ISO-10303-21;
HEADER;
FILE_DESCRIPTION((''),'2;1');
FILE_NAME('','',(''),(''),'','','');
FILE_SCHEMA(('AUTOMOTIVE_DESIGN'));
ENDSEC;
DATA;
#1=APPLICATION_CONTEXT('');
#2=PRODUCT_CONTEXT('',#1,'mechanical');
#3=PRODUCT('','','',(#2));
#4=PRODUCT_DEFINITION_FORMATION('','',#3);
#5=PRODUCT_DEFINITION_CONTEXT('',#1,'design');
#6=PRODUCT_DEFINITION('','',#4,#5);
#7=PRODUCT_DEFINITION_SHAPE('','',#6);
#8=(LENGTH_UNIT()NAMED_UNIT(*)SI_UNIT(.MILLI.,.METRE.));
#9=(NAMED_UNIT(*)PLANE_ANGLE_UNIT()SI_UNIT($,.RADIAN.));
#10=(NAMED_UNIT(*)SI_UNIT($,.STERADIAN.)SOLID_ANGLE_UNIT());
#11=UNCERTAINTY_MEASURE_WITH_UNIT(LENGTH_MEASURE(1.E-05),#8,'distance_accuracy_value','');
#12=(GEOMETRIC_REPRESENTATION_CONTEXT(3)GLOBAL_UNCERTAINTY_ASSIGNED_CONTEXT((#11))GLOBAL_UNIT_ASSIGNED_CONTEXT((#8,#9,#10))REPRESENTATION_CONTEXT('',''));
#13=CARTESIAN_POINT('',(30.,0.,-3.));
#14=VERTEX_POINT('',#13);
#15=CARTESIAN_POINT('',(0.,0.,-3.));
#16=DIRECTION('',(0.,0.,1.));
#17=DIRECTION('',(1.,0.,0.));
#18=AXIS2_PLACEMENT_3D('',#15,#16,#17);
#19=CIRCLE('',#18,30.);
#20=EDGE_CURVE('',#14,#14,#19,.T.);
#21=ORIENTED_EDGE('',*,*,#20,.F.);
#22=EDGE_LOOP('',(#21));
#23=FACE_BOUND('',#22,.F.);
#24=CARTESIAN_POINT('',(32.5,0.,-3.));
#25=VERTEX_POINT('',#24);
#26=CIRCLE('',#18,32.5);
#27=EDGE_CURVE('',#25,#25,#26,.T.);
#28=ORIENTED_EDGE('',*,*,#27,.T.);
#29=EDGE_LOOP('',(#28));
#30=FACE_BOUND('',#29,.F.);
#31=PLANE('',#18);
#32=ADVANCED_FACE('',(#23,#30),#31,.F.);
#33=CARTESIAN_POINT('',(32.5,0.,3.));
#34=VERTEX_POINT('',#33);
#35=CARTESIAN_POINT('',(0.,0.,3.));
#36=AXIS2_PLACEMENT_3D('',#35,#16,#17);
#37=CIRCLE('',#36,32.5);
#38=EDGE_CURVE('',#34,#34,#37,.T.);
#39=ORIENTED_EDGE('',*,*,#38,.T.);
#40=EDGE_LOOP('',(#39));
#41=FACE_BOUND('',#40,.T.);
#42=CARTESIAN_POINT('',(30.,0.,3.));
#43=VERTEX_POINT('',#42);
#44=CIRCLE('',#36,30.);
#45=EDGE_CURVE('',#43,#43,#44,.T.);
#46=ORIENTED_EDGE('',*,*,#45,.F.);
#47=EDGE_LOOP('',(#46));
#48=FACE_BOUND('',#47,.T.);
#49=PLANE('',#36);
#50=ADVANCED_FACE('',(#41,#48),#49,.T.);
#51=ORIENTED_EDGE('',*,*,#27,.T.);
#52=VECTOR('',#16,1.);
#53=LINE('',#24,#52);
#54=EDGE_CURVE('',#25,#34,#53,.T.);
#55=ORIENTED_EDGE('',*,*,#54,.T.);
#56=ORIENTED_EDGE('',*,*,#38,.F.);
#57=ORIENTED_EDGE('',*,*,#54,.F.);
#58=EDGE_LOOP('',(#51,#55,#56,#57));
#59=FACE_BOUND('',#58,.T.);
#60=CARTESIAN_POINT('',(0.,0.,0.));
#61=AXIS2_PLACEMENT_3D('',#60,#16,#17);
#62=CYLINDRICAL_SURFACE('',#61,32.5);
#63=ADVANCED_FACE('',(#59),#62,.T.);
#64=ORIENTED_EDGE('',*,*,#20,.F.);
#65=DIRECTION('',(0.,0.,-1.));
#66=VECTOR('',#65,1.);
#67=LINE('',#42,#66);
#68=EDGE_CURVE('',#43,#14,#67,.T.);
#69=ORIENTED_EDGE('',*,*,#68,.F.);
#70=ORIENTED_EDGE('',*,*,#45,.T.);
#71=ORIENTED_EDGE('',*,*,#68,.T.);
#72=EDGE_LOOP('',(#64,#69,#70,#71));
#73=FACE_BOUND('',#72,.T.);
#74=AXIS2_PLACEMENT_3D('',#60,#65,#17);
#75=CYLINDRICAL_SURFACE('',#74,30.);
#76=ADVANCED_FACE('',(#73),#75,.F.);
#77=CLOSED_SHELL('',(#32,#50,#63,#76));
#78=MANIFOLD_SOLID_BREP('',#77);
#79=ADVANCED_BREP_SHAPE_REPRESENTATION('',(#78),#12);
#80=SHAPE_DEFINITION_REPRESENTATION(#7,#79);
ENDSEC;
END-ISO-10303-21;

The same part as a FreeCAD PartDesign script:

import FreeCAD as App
import Part
import Sketcher
Q = App.Units.Quantity

doc = App.newDocument("Part")
body = doc.addObject("PartDesign::Body", "Body")

# Sketch on XY plane
sketch1 = body.newObject("Sketcher::SketchObject", "Sketch")
sketch1.AttachmentSupport = (doc.getObject("XY_Plane"), [""])
sketch1.MapMode = "FlatFace"
sketch1.addGeometry(Part.Circle(App.Vector(0, 0, 0), App.Vector(0, 0, 1), 32), False)
sketch1.addGeometry(Part.Circle(App.Vector(0, 0, 0), App.Vector(0, 0, 1), 30), False)
sketch1.addConstraint(Sketcher.Constraint("Coincident", 0, 3, -1, 1))
sketch1.addConstraint(Sketcher.Constraint("Coincident", 1, 3, -1, 1))
sketch1.addConstraint(Sketcher.Constraint("Diameter", 0, Q("65 mm")))
sketch1.addConstraint(Sketcher.Constraint("Diameter", 1, Q("60 mm")))
pad1 = body.newObject("PartDesign::Pad", "Pad")
pad1.Profile = sketch1
pad1.Length = 6
pad1.Midplane = True

doc.recompute()
